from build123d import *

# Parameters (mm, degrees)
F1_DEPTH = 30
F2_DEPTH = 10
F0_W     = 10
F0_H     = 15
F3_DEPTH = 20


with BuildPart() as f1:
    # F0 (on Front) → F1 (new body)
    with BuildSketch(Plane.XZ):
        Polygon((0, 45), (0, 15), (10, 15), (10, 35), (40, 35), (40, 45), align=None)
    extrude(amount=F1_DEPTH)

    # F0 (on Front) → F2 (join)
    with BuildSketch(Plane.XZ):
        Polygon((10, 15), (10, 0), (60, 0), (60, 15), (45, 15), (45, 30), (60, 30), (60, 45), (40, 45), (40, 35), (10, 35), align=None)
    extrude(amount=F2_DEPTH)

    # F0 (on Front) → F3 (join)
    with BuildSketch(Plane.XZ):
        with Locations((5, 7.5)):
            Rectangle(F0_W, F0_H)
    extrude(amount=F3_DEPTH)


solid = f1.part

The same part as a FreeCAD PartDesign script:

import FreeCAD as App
import Part
import Sketcher
from FreeCAD import Vector

doc = App.newDocument("Part")
body = doc.addObject("PartDesign::Body", "Body")

# Sketch on XZ plane
sketch1 = doc.addObject("Sketcher::SketchObject", "Sketch")
body.addObject(sketch1)
sketch1.AttachmentSupport = (doc.XZ_Plane, [""])
sketch1.MapMode = "FlatFace"
sketch1.addGeometry([
    Part.LineSegment(Vector(0, 45, 0), Vector(0, 15, 0)),  # 0
    Part.LineSegment(Vector(0, 15, 0), Vector(10, 15, 0)),  # 1
    Part.LineSegment(Vector(10, 15, 0), Vector(10, 35, 0)),  # 2
    Part.LineSegment(Vector(10, 35, 0), Vector(40, 35, 0)),  # 3
    Part.LineSegment(Vector(40, 35, 0), Vector(40, 45, 0)),  # 4
    Part.LineSegment(Vector(40, 45, 0), Vector(0, 45, 0)),  # 5
], False)
sketch1.addConstraint([
    Sketcher.Constraint("Coincident", 0, 2, 1, 1),
    Sketcher.Constraint("Coincident", 1, 2, 2, 1),
    Sketcher.Constraint("Coincident", 2, 2, 3, 1),
    Sketcher.Constraint("Coincident", 3, 2, 4, 1),
    Sketcher.Constraint("Coincident", 4, 2, 5, 1),
    Sketcher.Constraint("Coincident", 5, 2, 0, 1),
    Sketcher.Constraint("Vertical", 0),
    Sketcher.Constraint("Horizontal", 1),
    Sketcher.Constraint("Vertical", 2),
    Sketcher.Constraint("Horizontal", 3),
    Sketcher.Constraint("Vertical", 4),
    Sketcher.Constraint("Horizontal", 5),
    Sketcher.Constraint("PointOnObject", 0, 2, -2),
    Sketcher.Constraint("Equal", 3, 0),
    Sketcher.Constraint("Equal", 1, 4),
    Sketcher.Constraint("DistanceX", 1, 1, 1, 2, 10.0),
    Sketcher.Constraint("DistanceX", 3, 1, 3, 2, 30.0),
    Sketcher.Constraint("DistanceY", -1, 1, 0, 2, 15.0),
])
pad1 = doc.addObject("PartDesign::Pad", "Pad")
body.addObject(pad1)
pad1.Profile = sketch1
pad1.Length = 30

# Sketch on XZ plane
sketch2 = doc.addObject("Sketcher::SketchObject", "Sketch001")
body.addObject(sketch2)
sketch2.AttachmentSupport = (doc.XZ_Plane, [""])
sketch2.MapMode = "FlatFace"
sketch2.addGeometry([
    Part.LineSegment(Vector(10, 0, 0), Vector(60, 0, 0)),  # 0
    Part.LineSegment(Vector(60, 0, 0), Vector(60, 15, 0)),  # 1
    Part.LineSegment(Vector(60, 15, 0), Vector(45, 15, 0)),  # 2
    Part.LineSegment(Vector(45, 15, 0), Vector(45, 30, 0)),  # 3
    Part.LineSegment(Vector(45, 30, 0), Vector(60, 30, 0)),  # 4
    Part.LineSegment(Vector(60, 30, 0), Vector(60, 45, 0)),  # 5
    Part.LineSegment(Vector(60, 45, 0), Vector(40, 45, 0)),  # 6
    Part.LineSegment(Vector(40, 45, 0), Vector(40, 35, 0)),  # 7
    Part.LineSegment(Vector(40, 35, 0), Vector(10, 35, 0)),  # 8
    Part.LineSegment(Vector(10, 35, 0), Vector(10, 0, 0)),  # 9
], False)
sketch2.addConstraint([
    Sketcher.Constraint("Coincident", 0, 2, 1, 1),
    Sketcher.Constraint("Coincident", 1, 2, 2, 1),
    Sketcher.Constraint("Coincident", 2, 2, 3, 1),
    Sketcher.Constraint("Coincident", 3, 2, 4, 1),
    Sketcher.Constraint("Coincident", 4, 2, 5, 1),
    Sketcher.Constraint("Coincident", 5, 2, 6, 1),
    Sketcher.Constraint("Coincident", 6, 2, 7, 1),
    Sketcher.Constraint("Coincident", 7, 2, 8, 1),
    Sketcher.Constraint("Coincident", 8, 2, 9, 1),
    Sketcher.Constraint("Coincident", 9, 2, 0, 1),
    Sketcher.Constraint("Horizontal", 0),
    Sketcher.Constraint("Vertical", 1),
    Sketcher.Constraint("Horizontal", 2),
    Sketcher.Constraint("Vertical", 3),
    Sketcher.Constraint("Horizontal", 4),
    Sketcher.Constraint("Vertical", 5),
    Sketcher.Constraint("Horizontal", 6),
    Sketcher.Constraint("Vertical", 7),
    Sketcher.Constraint("Horizontal", 8),
    Sketcher.Constraint("Vertical", 9),
    Sketcher.Constraint("PointOnObject", 0, 2, -1),
    Sketcher.Constraint("Vertical", 1, 2, 4, 2),
    Sketcher.Constraint("Equal", 4, 1),
    Sketcher.Constraint("Equal", 1, 3),
    Sketcher.Constraint("Equal", 3, 5),
    Sketcher.Constraint("DistanceX", 0, 1, 0, 2, 50.0),
    Sketcher.Constraint("DistanceX", 2, 2, 2, 1, 15.0),
    Sketcher.Constraint("DistanceX", 6, 2, 6, 1, 20.0),
    Sketcher.Constraint("DistanceY", 7, 2, 7, 1, 10.0),
    Sketcher.Constraint("DistanceX", -1, 1, 0, 2, 60.0),
])
pad2 = doc.addObject("PartDesign::Pad", "Pad001")
body.addObject(pad2)
pad2.Profile = sketch2
pad2.Length = 10

# Sketch on XZ plane
sketch3 = doc.addObject("Sketcher::SketchObject", "Sketch002")
body.addObject(sketch3)
sketch3.AttachmentSupport = (doc.XZ_Plane, [""])
sketch3.MapMode = "FlatFace"
sketch3.addGeometry([
    Part.LineSegment(Vector(0, 15, 0), Vector(0, 0, 0)),
    Part.LineSegment(Vector(0, 0, 0), Vector(10, 0, 0)),
    Part.LineSegment(Vector(10, 0, 0), Vector(10, 15, 0)),
    Part.LineSegment(Vector(10, 15, 0), Vector(0, 15, 0)),
], False)
sketch3.addConstraint([
    Sketcher.Constraint("Coincident", 0, 2, 1, 1),
    Sketcher.Constraint("Coincident", 1, 2, 2, 1),
    Sketcher.Constraint("Coincident", 2, 2, 3, 1),
    Sketcher.Constraint("Coincident", 3, 2, 0, 1),
    Sketcher.Constraint("Vertical", 0),
    Sketcher.Constraint("Horizontal", 1),
    Sketcher.Constraint("Vertical", 2),
    Sketcher.Constraint("Horizontal", 3),
    Sketcher.Constraint("Coincident", 0, 2, -1, 1),
    Sketcher.Constraint("DistanceX", 1, 1, 1, 2, 10.0),
    Sketcher.Constraint("DistanceY", 0, 2, 0, 1, 15.0),
])
pad3 = doc.addObject("PartDesign::Pad", "Pad002")
body.addObject(pad3)
pad3.Profile = sketch3
pad3.Length = 20

doc.recompute()
